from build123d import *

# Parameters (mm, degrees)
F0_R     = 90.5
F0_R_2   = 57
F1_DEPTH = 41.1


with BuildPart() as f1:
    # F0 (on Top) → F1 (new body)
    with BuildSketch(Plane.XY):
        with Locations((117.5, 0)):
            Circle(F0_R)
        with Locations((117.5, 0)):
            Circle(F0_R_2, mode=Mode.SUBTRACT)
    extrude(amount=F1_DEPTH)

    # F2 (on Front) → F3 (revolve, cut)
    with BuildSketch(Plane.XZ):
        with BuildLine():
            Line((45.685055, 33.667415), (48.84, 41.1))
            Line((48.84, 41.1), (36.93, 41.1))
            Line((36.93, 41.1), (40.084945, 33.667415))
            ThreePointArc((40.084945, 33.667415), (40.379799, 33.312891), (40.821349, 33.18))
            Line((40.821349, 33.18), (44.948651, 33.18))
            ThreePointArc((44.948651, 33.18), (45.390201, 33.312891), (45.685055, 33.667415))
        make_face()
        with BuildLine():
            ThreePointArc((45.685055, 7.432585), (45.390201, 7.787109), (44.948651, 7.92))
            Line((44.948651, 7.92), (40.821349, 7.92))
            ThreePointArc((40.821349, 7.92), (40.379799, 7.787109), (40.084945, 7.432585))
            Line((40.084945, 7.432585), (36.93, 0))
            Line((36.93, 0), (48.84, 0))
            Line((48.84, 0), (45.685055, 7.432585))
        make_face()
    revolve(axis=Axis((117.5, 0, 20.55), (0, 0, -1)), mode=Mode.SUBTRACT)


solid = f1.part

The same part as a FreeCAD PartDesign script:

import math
import FreeCAD as App
import Part
import Sketcher

V = App.Vector
Q = App.Units.Quantity

doc = App.newDocument("Part")
params = doc.addObject("Spreadsheet::Sheet", "Params")
for row, (alias, value) in enumerate([
    ("sketch1_diameter", "181 mm"),
    ("sketch1_diameter2", "114 mm"),
    ("pad1_length", "41.1 mm"),
    ("sketch2_height", "41.1 mm"),
    ("sketch2_width", "11.91 mm"),
    ("groove_angle", "360 deg"),
], start=1):
    params.set(f"A{row}", alias)
    params.set(f"B{row}", "=" + value)
    params.setAlias(f"B{row}", alias)

body = doc.addObject("PartDesign::Body", "Body")

sketch1 = body.newObject("Sketcher::SketchObject", "Sketch")
sketch1.AttachmentSupport = (doc.getObject("XY_Plane"), [""])
sketch1.MapMode = "FlatFace"
sketch1.addGeometry([
    Part.Circle(V(117.5, 0, 0), V(0, 0, 1), 90.5),
    Part.Circle(V(117.5, 0, 0), V(0, 0, 1), 57),
], False)
sketch1.addConstraint([
    Sketcher.Constraint("Coincident", 1, 3, 0, 3),
    Sketcher.Constraint("PointOnObject", 0, 3, -1),
    Sketcher.Constraint("Diameter", 0, Q("181 mm")),
    Sketcher.Constraint("Diameter", 1, Q("114 mm")),
    Sketcher.Constraint("DistanceX", -1, 1, 0, 3, Q("117.5 mm")),
])
sketch1.setExpression("Constraints[2]", "Params.sketch1_diameter")
sketch1.setExpression("Constraints[3]", "Params.sketch1_diameter2")
pad1 = body.newObject("PartDesign::Pad", "Pad")
pad1.Profile = sketch1
pad1.setExpression("Length", "Params.pad1_length")

sketch2 = body.newObject("Sketcher::SketchObject", "Sketch001")
sketch2.AttachmentSupport = (doc.getObject("XZ_Plane"), [""])
sketch2.MapMode = "FlatFace"
sketch2.addGeometry([
    Part.LineSegment(V(45.685055, 33.667415, 0), V(48.84, 41.1, 0)),
    Part.LineSegment(V(48.84, 41.1, 0), V(36.93, 41.1, 0)),
    Part.LineSegment(V(36.93, 41.1, 0), V(40.084945, 33.667415, 0)),
    Part.ArcOfCircle(Part.Circle(V(40.821347, 33.979998, 0), V(0, 0, 1), 0.799998), math.radians(-157.000094), math.radians(-89.999887)),
    Part.LineSegment(V(40.821349, 33.18, 0), V(44.948651, 33.18, 0)),
    Part.ArcOfCircle(Part.Circle(V(44.948653, 33.979998, 0), V(0, 0, 1), 0.799998), math.radians(-90.000113), math.radians(-22.999906)),
    Part.ArcOfCircle(Part.Circle(V(44.948653, 7.120002, 0), V(0, 0, 1), 0.799998), math.radians(22.999906), math.radians(90.000113)),
    Part.LineSegment(V(44.948651, 7.92, 0), V(40.821349, 7.92, 0)),
    Part.ArcOfCircle(Part.Circle(V(40.821347, 7.120002, 0), V(0, 0, 1), 0.799998), math.radians(89.999887), math.radians(157.000094)),
    Part.LineSegment(V(40.084945, 7.432585, 0), V(36.93, 0, 0)),
    Part.LineSegment(V(36.93, 0, 0), V(48.84, 0, 0)),
    Part.LineSegment(V(48.84, 0, 0), V(45.685055, 7.432585, 0)),
], False)
sketch2.addGeometry(Part.LineSegment(V(117.5, 41.1, 0), V(117.5, 0, 0)), True)
sketch2.addConstraint([
    Sketcher.Constraint("Coincident", 0, 2, 1, 1),
    Sketcher.Constraint("Coincident", 1, 2, 2, 1),
    Sketcher.Constraint("Tangent", 2, 2, 3, 1),
    Sketcher.Constraint("Tangent", 3, 2, 4, 1),
    Sketcher.Constraint("Tangent", 4, 2, 5, 1),
    Sketcher.Constraint("Tangent", 5, 2, 0, 1),
    Sketcher.Constraint("Tangent", 6, 2, 7, 1),
    Sketcher.Constraint("Tangent", 7, 2, 8, 1),
    Sketcher.Constraint("Tangent", 8, 2, 9, 1),
    Sketcher.Constraint("Coincident", 9, 2, 10, 1),
    Sketcher.Constraint("Coincident", 10, 2, 11, 1),
    Sketcher.Constraint("Tangent", 11, 2, 6, 1),
    Sketcher.Constraint("Horizontal", 1),
    Sketcher.Constraint("Horizontal", 4),
    Sketcher.Constraint("Horizontal", 7),
    Sketcher.Constraint("Horizontal", 10),
    Sketcher.Constraint("Vertical", 12),
    Sketcher.Constraint("Equal", 3, 5),
    Sketcher.Constraint("Equal", 5, 6),
    Sketcher.Constraint("Equal", 6, 8),
    Sketcher.Constraint("PointOnObject", 9, 2, -1),
    Sketcher.Constraint("PointOnObject", 12, 2, -1),
    Sketcher.Constraint("Parallel", 0, 9),
    Sketcher.Constraint("Parallel", 2, 11),
    Sketcher.Constraint("Horizontal", 2, 2, 5, 2),
    Sketcher.Constraint("Horizontal", 1, 2, 12, 1),
    Sketcher.Constraint("Vertical", 5, 3, 6, 3),
    Sketcher.Constraint("Vertical", 3, 3, 8, 3),
    Sketcher.Constraint("Vertical", 1, 2, 9, 2),
    Sketcher.Constraint("Angle", 0, Q("67.000001 deg")),
    Sketcher.Constraint("DistanceY", 12, 2, 12, 1, Q("41.1 mm")),
    Sketcher.Constraint("DistanceX", 1, 2, 1, 1, Q("11.91 mm")),
    Sketcher.Constraint("DistanceX", -1, 1, 12, 1, Q("117.5 mm")),
    Sketcher.Constraint("DistanceX", -1, 1, 0, 2, Q("48.84 mm")),
    Sketcher.Constraint("DistanceY", -1, 1, 3, 2, Q("33.18 mm")),
    Sketcher.Constraint("Radius", 3, Q("0.799998 mm")),
])
sketch2.setExpression("Constraints[30]", "Params.sketch2_height")
sketch2.setExpression("Constraints[31]", "Params.sketch2_width")
groove = body.newObject("PartDesign::Groove", "Groove")
groove.Profile = sketch2
groove.ReferenceAxis = (sketch2, ["Axis0"])
groove.setExpression("Angle", "Params.groove_angle")

doc.recompute()
